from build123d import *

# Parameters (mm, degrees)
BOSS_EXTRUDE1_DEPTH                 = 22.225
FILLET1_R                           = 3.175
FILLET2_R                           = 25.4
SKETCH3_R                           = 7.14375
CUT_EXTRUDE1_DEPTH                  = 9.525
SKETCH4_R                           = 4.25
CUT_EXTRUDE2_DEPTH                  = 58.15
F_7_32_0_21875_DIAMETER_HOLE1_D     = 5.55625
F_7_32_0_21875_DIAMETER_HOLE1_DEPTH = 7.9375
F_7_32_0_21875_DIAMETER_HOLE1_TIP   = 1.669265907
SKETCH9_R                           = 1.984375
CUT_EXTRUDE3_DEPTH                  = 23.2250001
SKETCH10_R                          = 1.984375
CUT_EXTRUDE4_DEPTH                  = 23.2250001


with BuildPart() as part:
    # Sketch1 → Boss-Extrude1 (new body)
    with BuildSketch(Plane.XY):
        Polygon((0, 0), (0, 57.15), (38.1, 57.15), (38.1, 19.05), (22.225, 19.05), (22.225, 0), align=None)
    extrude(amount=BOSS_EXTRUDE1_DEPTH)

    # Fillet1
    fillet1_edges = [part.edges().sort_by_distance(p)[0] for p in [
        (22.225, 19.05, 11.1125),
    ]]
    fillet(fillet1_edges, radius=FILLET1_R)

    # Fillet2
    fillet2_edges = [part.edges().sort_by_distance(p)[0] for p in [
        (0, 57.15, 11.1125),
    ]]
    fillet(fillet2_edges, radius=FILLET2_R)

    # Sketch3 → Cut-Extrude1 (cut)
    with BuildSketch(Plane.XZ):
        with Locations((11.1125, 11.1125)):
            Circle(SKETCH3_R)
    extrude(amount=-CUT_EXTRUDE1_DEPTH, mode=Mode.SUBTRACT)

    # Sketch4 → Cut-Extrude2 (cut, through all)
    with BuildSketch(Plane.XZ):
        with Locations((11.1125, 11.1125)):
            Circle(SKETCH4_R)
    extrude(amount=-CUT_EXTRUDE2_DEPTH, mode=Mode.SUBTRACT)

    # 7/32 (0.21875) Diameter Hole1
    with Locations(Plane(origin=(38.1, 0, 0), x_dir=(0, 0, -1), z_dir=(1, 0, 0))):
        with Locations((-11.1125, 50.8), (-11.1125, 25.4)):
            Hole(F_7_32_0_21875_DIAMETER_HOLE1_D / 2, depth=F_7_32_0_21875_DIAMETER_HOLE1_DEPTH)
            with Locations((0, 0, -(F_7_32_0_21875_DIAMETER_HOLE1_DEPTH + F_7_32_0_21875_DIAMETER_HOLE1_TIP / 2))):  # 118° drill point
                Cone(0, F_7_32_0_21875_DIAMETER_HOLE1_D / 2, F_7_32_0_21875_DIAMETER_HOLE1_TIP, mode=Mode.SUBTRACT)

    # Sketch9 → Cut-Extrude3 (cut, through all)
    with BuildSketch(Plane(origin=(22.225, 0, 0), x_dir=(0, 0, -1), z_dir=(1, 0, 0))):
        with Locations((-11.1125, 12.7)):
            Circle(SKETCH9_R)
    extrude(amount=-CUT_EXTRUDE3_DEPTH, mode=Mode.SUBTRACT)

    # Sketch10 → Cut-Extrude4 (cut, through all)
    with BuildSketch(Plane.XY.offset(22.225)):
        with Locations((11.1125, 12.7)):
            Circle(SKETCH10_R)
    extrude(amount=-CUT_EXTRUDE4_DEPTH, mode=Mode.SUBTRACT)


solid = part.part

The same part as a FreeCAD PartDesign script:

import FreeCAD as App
import Part
import Sketcher
Q = App.Units.Quantity


def edges_at(feature, points):
    """Names of the edges that pass closest to the given points."""
    edges = feature.Shape.Edges
    near = lambda p: min(range(len(edges)), key=lambda i: edges[i].distToShape(Part.Vertex(*p))[0])
    return sorted({f"Edge{near(p) + 1}" for p in points})

doc = App.newDocument("Part")
params = doc.addObject("Spreadsheet::Sheet", "Params")
for row, (alias, value) in enumerate([
    ("sketch1_width", "1.5 in"),
    ("sketch1_height", "2.25 in"),
    ("sketch1_width2", "0.875 in"),
    ("pad1_length", "0.875 in"),
    ("fillet_radius", "0.125 in"),
    ("fillet2_radius", "1 in"),
    ("sketch2_diameter", "0.5625 in"),
    ("pocket1_length", "0.375 in"),
    ("sketch4_diameter", "0.21875 in"),
    ("hole_diameter", "0.21875 in"),
    ("hole_depth", "0.3125 in"),
    ("sketch5_diameter", "0.15625 in"),
    ("sketch6_diameter", "0.15625 in"),
], start=1):
    params.set(f"A{row}", alias)
    params.set(f"B{row}", "=" + value)
    params.setAlias(f"B{row}", alias)

body = doc.addObject("PartDesign::Body", "Body")

# Sketch on XY plane
sketch1 = doc.addObject("Sketcher::SketchObject", "Sketch")
body.addObject(sketch1)
sketch1.AttachmentSupport = (doc.XY_Plane, [""])
sketch1.MapMode = "FlatFace"
sketch1.addGeometry(Part.LineSegment(App.Vector(0, 57, 0), App.Vector(0, 0, 0)), False)
sketch1.addGeometry(Part.LineSegment(App.Vector(0, 0, 0), App.Vector(22, 0, 0)), False)
sketch1.addGeometry(Part.LineSegment(App.Vector(22, 0, 0), App.Vector(22, 19, 0)), False)
sketch1.addGeometry(Part.LineSegment(App.Vector(22, 19, 0), App.Vector(38, 19, 0)), False)
sketch1.addGeometry(Part.LineSegment(App.Vector(38, 19, 0), App.Vector(38, 57, 0)), False)
sketch1.addGeometry(Part.LineSegment(App.Vector(38, 57, 0), App.Vector(0, 57, 0)), False)
sketch1.addConstraint(Sketcher.Constraint("Coincident", 0, 2, 1, 1))
sketch1.addConstraint(Sketcher.Constraint("Coincident", 1, 2, 2, 1))
sketch1.addConstraint(Sketcher.Constraint("Coincident", 2, 2, 3, 1))
sketch1.addConstraint(Sketcher.Constraint("Coincident", 3, 2, 4, 1))
sketch1.addConstraint(Sketcher.Constraint("Coincident", 4, 2, 5, 1))
sketch1.addConstraint(Sketcher.Constraint("Coincident", 5, 2, 0, 1))
sketch1.addConstraint(Sketcher.Constraint("Vertical", 0))
sketch1.addConstraint(Sketcher.Constraint("Horizontal", 1))
sketch1.addConstraint(Sketcher.Constraint("Vertical", 2))
sketch1.addConstraint(Sketcher.Constraint("Horizontal", 3))
sketch1.addConstraint(Sketcher.Constraint("Vertical", 4))
sketch1.addConstraint(Sketcher.Constraint("Horizontal", 5))
sketch1.addConstraint(Sketcher.Constraint("Coincident", 0, 2, -1, 1))
sketch1.addConstraint(Sketcher.Constraint("Equal", 5, 4))
sketch1.addConstraint(Sketcher.Constraint("DistanceX", 5, 2, 5, 1, Q("1.5 in")))
sketch1.addConstraint(Sketcher.Constraint("DistanceY", 0, 2, 0, 1, Q("2.25 in")))
sketch1.addConstraint(Sketcher.Constraint("DistanceX", 1, 1, 1, 2, Q("0.875 in")))
sketch1.setExpression("Constraints[14]", "Params.sketch1_width")
sketch1.setExpression("Constraints[15]", "Params.sketch1_height")
sketch1.setExpression("Constraints[16]", "Params.sketch1_width2")
pad1 = doc.addObject("PartDesign::Pad", "Pad")
body.addObject(pad1)
pad1.Profile = sketch1
pad1.setExpression("Length", "Params.pad1_length")
doc.recompute()

fillet = doc.addObject("PartDesign::Fillet", "Fillet")
body.addObject(fillet)
fillet.Base = (pad1, edges_at(pad1, [(22.225, 19.05, 11.113)]))
fillet.setExpression("Radius", "Params.fillet_radius")
doc.recompute()

fillet2 = doc.addObject("PartDesign::Fillet", "Fillet001")
body.addObject(fillet2)
fillet2.Base = (fillet, edges_at(fillet, [(0, 57.15, 11.113)]))
fillet2.setExpression("Radius", "Params.fillet2_radius")

# Sketch on XZ plane
sketch2 = doc.addObject("Sketcher::SketchObject", "Sketch001")
body.addObject(sketch2)
sketch2.AttachmentSupport = (doc.XZ_Plane, [""])
sketch2.MapMode = "FlatFace"
sketch2.addGeometry(Part.Circle(App.Vector(11, 11, 0), App.Vector(0, 0, 1), 7), False)
sketch2.addConstraint(Sketcher.Constraint("Diameter", 0, Q("0.5625 in")))
sketch2.addConstraint(Sketcher.Constraint("DistanceX", -1, 1, 0, 3, Q("0.4375 in")))
sketch2.addConstraint(Sketcher.Constraint("DistanceY", -1, 1, 0, 3, Q("0.4375 in")))
sketch2.setExpression("Constraints[0]", "Params.sketch2_diameter")
pocket1 = doc.addObject("PartDesign::Pocket", "Pocket")
body.addObject(pocket1)
pocket1.Profile = sketch2
pocket1.setExpression("Length", "Params.pocket1_length")

# Sketch on XZ plane
sketch3 = doc.addObject("Sketcher::SketchObject", "Sketch002")
body.addObject(sketch3)
sketch3.AttachmentSupport = (doc.XZ_Plane, [""])
sketch3.MapMode = "FlatFace"
sketch3.addGeometry(Part.Circle(App.Vector(11.1, 11.1, 0), App.Vector(0, 0, 1), 4.2), False)
sketch3.addConstraint(Sketcher.Constraint("Diameter", 0, Q("8.5 mm")))
sketch3.addConstraint(Sketcher.Constraint("DistanceX", -1, 1, 0, 3, Q("0.4375 in")))
sketch3.addConstraint(Sketcher.Constraint("DistanceY", -1, 1, 0, 3, Q("0.4375 in")))
pocket2 = doc.addObject("PartDesign::Pocket", "Pocket001")
body.addObject(pocket2)
pocket2.Profile = sketch3
pocket2.Type = "ThroughAll"

# Sketch on YZ plane
sketch4 = doc.addObject("Sketcher::SketchObject", "Sketch003")
body.addObject(sketch4)
sketch4.AttachmentSupport = (doc.YZ_Plane, [""])
sketch4.MapMode = "FlatFace"
sketch4.AttachmentOffset = App.Placement(App.Vector(0, 0, 1.5 * 25.4), App.Rotation())
sketch4.addGeometry(Part.Circle(App.Vector(50.8, 11.1, 0), App.Vector(0, 0, 1), 2.8), False)
sketch4.addGeometry(Part.Circle(App.Vector(25.4, 11.1, 0), App.Vector(0, 0, 1), 2.8), False)
sketch4.addConstraint(Sketcher.Constraint("Equal", 0, 1))
sketch4.addConstraint(Sketcher.Constraint("Horizontal", 0, 3, 1, 3))
sketch4.addConstraint(Sketcher.Constraint("Diameter", 0, Q("0.21875 in")))
sketch4.addConstraint(Sketcher.Constraint("DistanceX", -1, 1, 0, 3, Q("2 in")))
sketch4.addConstraint(Sketcher.Constraint("DistanceX", -1, 1, 1, 3, Q("1 in")))
sketch4.addConstraint(Sketcher.Constraint("DistanceY", -1, 1, 0, 3, Q("0.4375 in")))
sketch4.setExpression("Constraints[2]", "Params.sketch4_diameter")
doc.recompute()
hole = doc.addObject("PartDesign::Hole", "Hole")
body.addObject(hole)
hole.Profile = sketch4
hole.ThreadType = "None"
hole.setExpression("Diameter", "Params.hole_diameter")
hole.DepthType = "Dimension"
hole.setExpression("Depth", "Params.hole_depth")
hole.DrillPoint = "Angled"
hole.DrillPointAngle = 118

# Sketch on YZ plane
sketch5 = doc.addObject("Sketcher::SketchObject", "Sketch004")
body.addObject(sketch5)
sketch5.AttachmentSupport = (doc.YZ_Plane, [""])
sketch5.MapMode = "FlatFace"
sketch5.AttachmentOffset = App.Placement(App.Vector(0, 0, 0.875 * 25.4), App.Rotation())
sketch5.addGeometry(Part.Circle(App.Vector(12.7, 11.1, 0), App.Vector(0, 0, 1), 2), False)
sketch5.addConstraint(Sketcher.Constraint("Diameter", 0, Q("0.15625 in")))
sketch5.addConstraint(Sketcher.Constraint("DistanceX", -1, 1, 0, 3, Q("0.5 in")))
sketch5.addConstraint(Sketcher.Constraint("DistanceY", -1, 1, 0, 3, Q("0.4375 in")))
sketch5.setExpression("Constraints[0]", "Params.sketch5_diameter")
pocket3 = doc.addObject("PartDesign::Pocket", "Pocket002")
body.addObject(pocket3)
pocket3.Profile = sketch5
pocket3.Type = "ThroughAll"

# Sketch on XY plane
sketch6 = doc.addObject("Sketcher::SketchObject", "Sketch005")
body.addObject(sketch6)
sketch6.AttachmentSupport = (doc.XY_Plane, [""])
sketch6.MapMode = "FlatFace"
sketch6.AttachmentOffset = App.Placement(App.Vector(0, 0, 0.875 * 25.4), App.Rotation())
sketch6.addGeometry(Part.Circle(App.Vector(11.1, 12.7, 0), App.Vector(0, 0, 1), 2), False)
sketch6.addConstraint(Sketcher.Constraint("Diameter", 0, Q("0.15625 in")))
sketch6.addConstraint(Sketcher.Constraint("DistanceY", -1, 1, 0, 3, Q("0.5 in")))
sketch6.addConstraint(Sketcher.Constraint("DistanceX", -1, 1, 0, 3, Q("0.4375 in")))
sketch6.setExpression("Constraints[0]", "Params.sketch6_diameter")
pocket4 = doc.addObject("PartDesign::Pocket", "Pocket003")
body.addObject(pocket4)
pocket4.Profile = sketch6
pocket4.Type = "ThroughAll"

doc.recompute()
